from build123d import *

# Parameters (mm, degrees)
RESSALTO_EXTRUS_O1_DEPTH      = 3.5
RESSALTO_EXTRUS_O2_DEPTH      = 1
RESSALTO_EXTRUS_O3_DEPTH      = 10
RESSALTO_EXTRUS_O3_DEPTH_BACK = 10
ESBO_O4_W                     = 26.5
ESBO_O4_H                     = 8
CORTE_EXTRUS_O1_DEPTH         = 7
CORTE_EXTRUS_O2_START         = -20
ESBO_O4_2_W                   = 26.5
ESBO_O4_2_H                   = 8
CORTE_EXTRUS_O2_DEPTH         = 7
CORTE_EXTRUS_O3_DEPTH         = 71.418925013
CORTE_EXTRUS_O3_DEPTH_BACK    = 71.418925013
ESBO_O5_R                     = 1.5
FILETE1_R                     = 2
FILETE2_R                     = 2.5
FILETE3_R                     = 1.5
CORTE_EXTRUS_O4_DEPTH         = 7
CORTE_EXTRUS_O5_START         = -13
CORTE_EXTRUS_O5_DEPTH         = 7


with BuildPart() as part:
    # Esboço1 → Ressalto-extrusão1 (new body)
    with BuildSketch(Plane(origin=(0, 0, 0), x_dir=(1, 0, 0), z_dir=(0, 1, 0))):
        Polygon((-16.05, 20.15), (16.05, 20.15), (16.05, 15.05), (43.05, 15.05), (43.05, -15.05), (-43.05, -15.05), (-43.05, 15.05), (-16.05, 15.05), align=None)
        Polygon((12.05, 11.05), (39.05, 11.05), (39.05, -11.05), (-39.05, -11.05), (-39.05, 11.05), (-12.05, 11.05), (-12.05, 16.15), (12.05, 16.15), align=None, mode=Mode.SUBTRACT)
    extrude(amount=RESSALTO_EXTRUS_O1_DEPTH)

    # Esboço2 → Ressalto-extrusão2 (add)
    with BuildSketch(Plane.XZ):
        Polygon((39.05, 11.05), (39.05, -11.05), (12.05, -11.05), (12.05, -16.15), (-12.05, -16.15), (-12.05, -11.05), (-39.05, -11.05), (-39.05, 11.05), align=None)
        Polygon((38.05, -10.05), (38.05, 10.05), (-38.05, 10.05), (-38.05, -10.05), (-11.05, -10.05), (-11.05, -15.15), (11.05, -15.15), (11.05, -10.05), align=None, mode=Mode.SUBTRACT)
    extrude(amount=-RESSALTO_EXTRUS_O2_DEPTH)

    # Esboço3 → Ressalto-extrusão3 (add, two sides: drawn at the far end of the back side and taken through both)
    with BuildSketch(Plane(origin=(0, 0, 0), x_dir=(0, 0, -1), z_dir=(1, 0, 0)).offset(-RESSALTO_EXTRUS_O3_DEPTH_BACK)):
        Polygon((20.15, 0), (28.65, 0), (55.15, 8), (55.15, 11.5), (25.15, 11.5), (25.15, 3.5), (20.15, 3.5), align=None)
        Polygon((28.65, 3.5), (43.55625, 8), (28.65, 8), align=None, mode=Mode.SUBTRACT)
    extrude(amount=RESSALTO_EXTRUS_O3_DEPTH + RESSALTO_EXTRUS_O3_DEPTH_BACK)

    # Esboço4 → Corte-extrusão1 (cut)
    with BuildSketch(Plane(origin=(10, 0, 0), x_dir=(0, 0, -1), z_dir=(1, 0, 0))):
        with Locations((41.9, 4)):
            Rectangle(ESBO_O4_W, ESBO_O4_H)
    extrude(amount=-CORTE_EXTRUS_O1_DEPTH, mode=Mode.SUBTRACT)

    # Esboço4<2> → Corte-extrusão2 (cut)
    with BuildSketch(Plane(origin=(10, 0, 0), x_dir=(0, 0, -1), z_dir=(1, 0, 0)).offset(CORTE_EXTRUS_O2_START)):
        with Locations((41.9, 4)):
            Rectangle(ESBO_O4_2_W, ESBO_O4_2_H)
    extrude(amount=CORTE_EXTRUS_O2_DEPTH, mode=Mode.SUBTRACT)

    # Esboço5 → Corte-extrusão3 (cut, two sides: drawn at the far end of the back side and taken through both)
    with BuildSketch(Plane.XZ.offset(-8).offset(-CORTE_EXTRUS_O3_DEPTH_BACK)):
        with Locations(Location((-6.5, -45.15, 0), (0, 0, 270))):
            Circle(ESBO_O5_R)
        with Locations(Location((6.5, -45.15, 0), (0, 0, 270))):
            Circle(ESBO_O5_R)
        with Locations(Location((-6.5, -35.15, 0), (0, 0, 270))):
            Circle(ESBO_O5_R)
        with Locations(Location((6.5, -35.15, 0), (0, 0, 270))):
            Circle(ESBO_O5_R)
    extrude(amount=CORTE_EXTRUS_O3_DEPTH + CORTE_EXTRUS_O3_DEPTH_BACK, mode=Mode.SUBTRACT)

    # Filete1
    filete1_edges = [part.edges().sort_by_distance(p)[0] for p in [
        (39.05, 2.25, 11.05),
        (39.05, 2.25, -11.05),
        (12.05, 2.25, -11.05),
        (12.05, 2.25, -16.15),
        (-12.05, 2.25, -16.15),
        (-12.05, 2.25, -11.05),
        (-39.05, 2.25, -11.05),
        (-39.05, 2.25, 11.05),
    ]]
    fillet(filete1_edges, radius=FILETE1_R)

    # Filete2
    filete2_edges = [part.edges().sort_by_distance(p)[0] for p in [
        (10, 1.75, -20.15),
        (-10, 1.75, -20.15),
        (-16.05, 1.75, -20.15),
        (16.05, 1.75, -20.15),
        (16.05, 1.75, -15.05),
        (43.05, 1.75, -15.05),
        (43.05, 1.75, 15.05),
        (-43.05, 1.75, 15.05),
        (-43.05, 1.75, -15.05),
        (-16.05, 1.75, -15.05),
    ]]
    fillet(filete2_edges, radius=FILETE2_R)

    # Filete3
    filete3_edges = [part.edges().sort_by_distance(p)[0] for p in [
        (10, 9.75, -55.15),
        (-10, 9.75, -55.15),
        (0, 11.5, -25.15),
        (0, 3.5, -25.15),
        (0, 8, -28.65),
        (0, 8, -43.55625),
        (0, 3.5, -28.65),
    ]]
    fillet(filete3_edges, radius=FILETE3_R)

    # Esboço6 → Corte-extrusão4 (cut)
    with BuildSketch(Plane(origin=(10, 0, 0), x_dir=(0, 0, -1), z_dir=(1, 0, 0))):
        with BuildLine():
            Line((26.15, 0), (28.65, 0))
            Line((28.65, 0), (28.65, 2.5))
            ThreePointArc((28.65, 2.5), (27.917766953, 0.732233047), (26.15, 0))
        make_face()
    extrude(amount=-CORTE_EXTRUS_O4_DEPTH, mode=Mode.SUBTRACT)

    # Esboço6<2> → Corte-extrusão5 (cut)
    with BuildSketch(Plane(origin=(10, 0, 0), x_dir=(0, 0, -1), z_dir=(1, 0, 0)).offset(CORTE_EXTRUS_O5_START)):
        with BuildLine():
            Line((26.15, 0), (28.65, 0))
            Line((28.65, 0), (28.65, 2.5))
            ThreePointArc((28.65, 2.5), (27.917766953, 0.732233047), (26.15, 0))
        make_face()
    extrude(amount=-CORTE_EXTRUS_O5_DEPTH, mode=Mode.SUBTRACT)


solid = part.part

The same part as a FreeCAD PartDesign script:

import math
import FreeCAD as App
import Part
import Sketcher


def edges_at(feature, points):
    """Names of the edges that pass closest to the given points."""
    edges = feature.Shape.Edges
    near = lambda p: min(range(len(edges)), key=lambda i: edges[i].distToShape(Part.Vertex(*p))[0])
    return sorted({f"Edge{near(p) + 1}" for p in points})

doc = App.newDocument("Part")
body = doc.addObject("PartDesign::Body", "Body")

# Sketch on XZ plane
sketch1 = body.newObject("Sketcher::SketchObject", "Sketch")
sketch1.AttachmentSupport = (doc.getObject("XZ_Plane"), [""])
sketch1.MapMode = "FlatFace"
sketch1.addGeometry([
    Part.LineSegment(App.Vector(16, -20, 0), App.Vector(-16, -20, 0)),  # 0
    Part.LineSegment(App.Vector(-16, -20, 0), App.Vector(-16, -15, 0)),  # 1
    Part.LineSegment(App.Vector(-16, -15, 0), App.Vector(-43, -15, 0)),  # 2
    Part.LineSegment(App.Vector(-43, -15, 0), App.Vector(-43, 15, 0)),  # 3
    Part.LineSegment(App.Vector(-43, 15, 0), App.Vector(43, 15, 0)),  # 4
    Part.LineSegment(App.Vector(43, 15, 0), App.Vector(43, -15, 0)),  # 5
    Part.LineSegment(App.Vector(43, -15, 0), App.Vector(16, -15, 0)),  # 6
    Part.LineSegment(App.Vector(16, -15, 0), App.Vector(16, -20, 0)),  # 7
    Part.LineSegment(App.Vector(12, -11, 0), App.Vector(39, -11, 0)),  # 8
    Part.LineSegment(App.Vector(39, -11, 0), App.Vector(39, 11, 0)),  # 9
    Part.LineSegment(App.Vector(39, 11, 0), App.Vector(-39, 11, 0)),  # 10
    Part.LineSegment(App.Vector(-39, 11, 0), App.Vector(-39, -11, 0)),  # 11
    Part.LineSegment(App.Vector(-39, -11, 0), App.Vector(-12, -11, 0)),  # 12
    Part.LineSegment(App.Vector(-12, -11, 0), App.Vector(-12, -16, 0)),  # 13
    Part.LineSegment(App.Vector(-12, -16, 0), App.Vector(12, -16, 0)),  # 14
    Part.LineSegment(App.Vector(12, -16, 0), App.Vector(12, -11, 0)),  # 15
], False)
sketch1.addConstraint([
    Sketcher.Constraint("Coincident", 0, 2, 1, 1),
    Sketcher.Constraint("Coincident", 1, 2, 2, 1),
    Sketcher.Constraint("Coincident", 2, 2, 3, 1),
    Sketcher.Constraint("Coincident", 3, 2, 4, 1),
    Sketcher.Constraint("Coincident", 4, 2, 5, 1),
    Sketcher.Constraint("Coincident", 5, 2, 6, 1),
    Sketcher.Constraint("Coincident", 6, 2, 7, 1),
    Sketcher.Constraint("Coincident", 7, 2, 0, 1),
    Sketcher.Constraint("Coincident", 8, 2, 9, 1),
    Sketcher.Constraint("Coincident", 9, 2, 10, 1),
    Sketcher.Constraint("Coincident", 10, 2, 11, 1),
    Sketcher.Constraint("Coincident", 11, 2, 12, 1),
    Sketcher.Constraint("Coincident", 12, 2, 13, 1),
    Sketcher.Constraint("Coincident", 13, 2, 14, 1),
    Sketcher.Constraint("Coincident", 14, 2, 15, 1),
    Sketcher.Constraint("Coincident", 15, 2, 8, 1),
    Sketcher.Constraint("Horizontal", 0),
    Sketcher.Constraint("Vertical", 1),
    Sketcher.Constraint("Horizontal", 2),
    Sketcher.Constraint("Vertical", 3),
    Sketcher.Constraint("Horizontal", 4),
    Sketcher.Constraint("Vertical", 5),
    Sketcher.Constraint("Horizontal", 6),
    Sketcher.Constraint("Vertical", 7),
    Sketcher.Constraint("Horizontal", 8),
    Sketcher.Constraint("Vertical", 9),
    Sketcher.Constraint("Horizontal", 10),
    Sketcher.Constraint("Vertical", 11),
    Sketcher.Constraint("Horizontal", 12),
    Sketcher.Constraint("Vertical", 13),
    Sketcher.Constraint("Horizontal", 14),
    Sketcher.Constraint("Vertical", 15),
    Sketcher.Constraint("Symmetric", 2, 2, 4, 2, -1, 1),
    Sketcher.Constraint("Symmetric", 8, 2, 10, 2, -1, 1),
    Sketcher.Constraint("Symmetric", 1, 2, 6, 2, -2),
    Sketcher.Constraint("Symmetric", 12, 2, 15, 2, -2),
    Sketcher.Constraint("Equal", 6, 8),
    Sketcher.Constraint("Equal", 7, 13),
    Sketcher.Constraint("DistanceX", 2, 2, 2, 1, 27.0),
    Sketcher.Constraint("DistanceX", 0, 2, 0, 1, 32.1),
    Sketcher.Constraint("DistanceX", 10, 2, 10, 1, 78.1),
    Sketcher.Constraint("DistanceY", 1, 1, 1, 2, 5.1),
    Sketcher.Constraint("DistanceY", 3, 1, 3, 2, 30.1),
    Sketcher.Constraint("DistanceY", 9, 1, 9, 2, 22.1),
])
pad1 = body.newObject("PartDesign::Pad", "Pad")
pad1.Profile = sketch1
pad1.Length = 3.5
pad1.Reversed = True

# Sketch on XZ plane
sketch2 = body.newObject("Sketcher::SketchObject", "Sketch001")
sketch2.AttachmentSupport = (doc.getObject("XZ_Plane"), [""])
sketch2.MapMode = "FlatFace"
sketch2.addGeometry([
    Part.LineSegment(App.Vector(39, -11, 0), App.Vector(39, 11, 0)),  # 0
    Part.LineSegment(App.Vector(39, 11, 0), App.Vector(-39, 11, 0)),  # 1
    Part.LineSegment(App.Vector(-39, 11, 0), App.Vector(-39, -11, 0)),  # 2
    Part.LineSegment(App.Vector(-39, -11, 0), App.Vector(-12, -11, 0)),  # 3
    Part.LineSegment(App.Vector(-12, -11, 0), App.Vector(-12, -16, 0)),  # 4
    Part.LineSegment(App.Vector(-12, -16, 0), App.Vector(12, -16, 0)),  # 5
    Part.LineSegment(App.Vector(12, -16, 0), App.Vector(12, -11, 0)),  # 6
    Part.LineSegment(App.Vector(12, -11, 0), App.Vector(39, -11, 0)),  # 7
    Part.LineSegment(App.Vector(38, -10, 0), App.Vector(11, -10, 0)),  # 8
    Part.LineSegment(App.Vector(11, -10, 0), App.Vector(11, -15, 0)),  # 9
    Part.LineSegment(App.Vector(11, -15, 0), App.Vector(-11, -15, 0)),  # 10
    Part.LineSegment(App.Vector(-11, -15, 0), App.Vector(-11, -10, 0)),  # 11
    Part.LineSegment(App.Vector(-11, -10, 0), App.Vector(-38, -10, 0)),  # 12
    Part.LineSegment(App.Vector(-38, -10, 0), App.Vector(-38, 10, 0)),  # 13
    Part.LineSegment(App.Vector(-38, 10, 0), App.Vector(38, 10, 0)),  # 14
    Part.LineSegment(App.Vector(38, 10, 0), App.Vector(38, -10, 0)),  # 15
], False)
sketch2.addConstraint([
    Sketcher.Constraint("Coincident", 0, 2, 1, 1),
    Sketcher.Constraint("Coincident", 1, 2, 2, 1),
    Sketcher.Constraint("Coincident", 2, 2, 3, 1),
    Sketcher.Constraint("Coincident", 3, 2, 4, 1),
    Sketcher.Constraint("Coincident", 4, 2, 5, 1),
    Sketcher.Constraint("Coincident", 5, 2, 6, 1),
    Sketcher.Constraint("Coincident", 6, 2, 7, 1),
    Sketcher.Constraint("Coincident", 7, 2, 0, 1),
    Sketcher.Constraint("Coincident", 8, 2, 9, 1),
    Sketcher.Constraint("Coincident", 9, 2, 10, 1),
    Sketcher.Constraint("Coincident", 10, 2, 11, 1),
    Sketcher.Constraint("Coincident", 11, 2, 12, 1),
    Sketcher.Constraint("Coincident", 12, 2, 13, 1),
    Sketcher.Constraint("Coincident", 13, 2, 14, 1),
    Sketcher.Constraint("Coincident", 14, 2, 15, 1),
    Sketcher.Constraint("Coincident", 15, 2, 8, 1),
    Sketcher.Constraint("Vertical", 0),
    Sketcher.Constraint("Horizontal", 1),
    Sketcher.Constraint("Vertical", 2),
    Sketcher.Constraint("Horizontal", 3),
    Sketcher.Constraint("Vertical", 4),
    Sketcher.Constraint("Horizontal", 5),
    Sketcher.Constraint("Vertical", 6),
    Sketcher.Constraint("Horizontal", 7),
    Sketcher.Constraint("Horizontal", 8),
    Sketcher.Constraint("Vertical", 9),
    Sketcher.Constraint("Horizontal", 10),
    Sketcher.Constraint("Vertical", 11),
    Sketcher.Constraint("Horizontal", 12),
    Sketcher.Constraint("Vertical", 13),
    Sketcher.Constraint("Horizontal", 14),
    Sketcher.Constraint("Vertical", 15),
    Sketcher.Constraint("Symmetric", 0, 2, 2, 2, -1, 1),
    Sketcher.Constraint("Symmetric", 12, 2, 14, 2, -1, 1),
    Sketcher.Constraint("Symmetric", 3, 2, 6, 2, -2),
    Sketcher.Constraint("Symmetric", 8, 2, 11, 2, -2),
    Sketcher.Constraint("Equal", 7, 8),
    Sketcher.Constraint("Equal", 10, 0),
    Sketcher.Constraint("Equal", 6, 9),
    Sketcher.Constraint("DistanceX", 3, 1, 3, 2, 27.0),
    Sketcher.Constraint("DistanceX", 1, 2, 1, 1, 78.1),
    Sketcher.Constraint("DistanceX", 10, 2, 10, 1, 22.1),
    Sketcher.Constraint("DistanceY", 4, 2, 4, 1, 5.1),
    Sketcher.Constraint("DistanceY", 13, 1, 13, 2, 20.1),
])
pad2 = body.newObject("PartDesign::Pad", "Pad001")
pad2.Profile = sketch2
pad2.Length = 1
pad2.Reversed = True

# Sketch on YZ plane
sketch3 = body.newObject("Sketcher::SketchObject", "Sketch002")
sketch3.AttachmentSupport = (doc.getObject("YZ_Plane"), [""])
sketch3.MapMode = "FlatFace"
sketch3.addGeometry([
    Part.LineSegment(App.Vector(0, -20.1, 0), App.Vector(0, -28.6, 0)),  # 0
    Part.LineSegment(App.Vector(0, -28.6, 0), App.Vector(8, -55.1, 0)),  # 1
    Part.LineSegment(App.Vector(8, -55.1, 0), App.Vector(11.5, -55.1, 0)),  # 2
    Part.LineSegment(App.Vector(11.5, -55.1, 0), App.Vector(11.5, -25.1, 0)),  # 3
    Part.LineSegment(App.Vector(11.5, -25.1, 0), App.Vector(3.5, -25.1, 0)),  # 4
    Part.LineSegment(App.Vector(3.5, -25.1, 0), App.Vector(3.5, -20.1, 0)),  # 5
    Part.LineSegment(App.Vector(3.5, -20.1, 0), App.Vector(0, -20.1, 0)),  # 6
    Part.LineSegment(App.Vector(8, -43.6, 0), App.Vector(3.5, -28.6, 0)),  # 7
    Part.LineSegment(App.Vector(3.5, -28.6, 0), App.Vector(8, -28.6, 0)),  # 8
    Part.LineSegment(App.Vector(8, -28.6, 0), App.Vector(8, -43.6, 0)),  # 9
], False)
sketch3.addConstraint([
    Sketcher.Constraint("Coincident", 0, 2, 1, 1),
    Sketcher.Constraint("Coincident", 1, 2, 2, 1),
    Sketcher.Constraint("Coincident", 2, 2, 3, 1),
    Sketcher.Constraint("Coincident", 3, 2, 4, 1),
    Sketcher.Constraint("Coincident", 4, 2, 5, 1),
    Sketcher.Constraint("Coincident", 5, 2, 6, 1),
    Sketcher.Constraint("Coincident", 6, 2, 0, 1),
    Sketcher.Constraint("Coincident", 7, 2, 8, 1),
    Sketcher.Constraint("Coincident", 8, 2, 9, 1),
    Sketcher.Constraint("Coincident", 9, 2, 7, 1),
    Sketcher.Constraint("Vertical", 0),
    Sketcher.Constraint("Horizontal", 2),
    Sketcher.Constraint("Vertical", 3),
    Sketcher.Constraint("Horizontal", 4),
    Sketcher.Constraint("Vertical", 5),
    Sketcher.Constraint("Horizontal", 6),
    Sketcher.Constraint("Horizontal", 8),
    Sketcher.Constraint("Vertical", 9),
    Sketcher.Constraint("PointOnObject", 0, 2, -2),
    Sketcher.Constraint("Parallel", 1, 7),
    Sketcher.Constraint("Horizontal", 0, 2, 7, 2),
    Sketcher.Constraint("Vertical", 5, 2, 7, 2),
    Sketcher.Constraint("Vertical", 1, 2, 8, 2),
    Sketcher.Constraint("Equal", 2, 6),
    Sketcher.Constraint("DistanceX", 4, 2, 4, 1, 8.0),
    Sketcher.Constraint("DistanceY", 3, 1, 3, 2, 30.0),
    Sketcher.Constraint("DistanceY", 5, 1, 5, 2, 5.0),
    Sketcher.Constraint("DistanceX", 2, 1, 2, 2, 3.5),
    Sketcher.Constraint("DistanceY", 0, 2, 0, 1, 8.5),
    Sketcher.Constraint("DistanceY", 0, 2, -1, 1, 28.65),
])
pad3 = body.newObject("PartDesign::Pad", "Pad002")
pad3.Profile = sketch3
pad3.Type = "TwoLengths"
pad3.Length = 10
pad3.Length2 = 10

# Sketch on YZ plane
sketch4 = body.newObject("Sketcher::SketchObject", "Sketch003")
sketch4.AttachmentSupport = (doc.getObject("YZ_Plane"), [""])
sketch4.MapMode = "FlatFace"
sketch4.AttachmentOffset = App.Placement(App.Vector(0, 0, 10), App.Rotation())
sketch4.addGeometry([
    Part.LineSegment(App.Vector(8, -29, 0), App.Vector(0, -29, 0)),
    Part.LineSegment(App.Vector(0, -29, 0), App.Vector(0, -55, 0)),
    Part.LineSegment(App.Vector(0, -55, 0), App.Vector(8, -55, 0)),
    Part.LineSegment(App.Vector(8, -55, 0), App.Vector(8, -29, 0)),
], False)
sketch4.addConstraint([
    Sketcher.Constraint("Coincident", 0, 2, 1, 1),
    Sketcher.Constraint("Coincident", 1, 2, 2, 1),
    Sketcher.Constraint("Coincident", 2, 2, 3, 1),
    Sketcher.Constraint("Coincident", 3, 2, 0, 1),
    Sketcher.Constraint("Horizontal", 0),
    Sketcher.Constraint("Vertical", 1),
    Sketcher.Constraint("Horizontal", 2),
    Sketcher.Constraint("Vertical", 3),
    Sketcher.Constraint("PointOnObject", 0, 2, -2),
    Sketcher.Constraint("DistanceX", 0, 2, 0, 1, 8.0),
    Sketcher.Constraint("DistanceY", 1, 2, 1, 1, 26.5),
    Sketcher.Constraint("DistanceY", 0, 2, -1, 1, 28.65),
])
pocket1 = body.newObject("PartDesign::Pocket", "Pocket")
pocket1.Profile = sketch4
pocket1.Length = 7

# Sketch on YZ plane
sketch5 = body.newObject("Sketcher::SketchObject", "Sketch004")
sketch5.AttachmentSupport = (doc.getObject("YZ_Plane"), [""])
sketch5.MapMode = "FlatFace"
sketch5.AttachmentOffset = App.Placement(App.Vector(0, 0, -10), App.Rotation())
sketch5.addGeometry([
    Part.LineSegment(App.Vector(8, -29, 0), App.Vector(0, -29, 0)),
    Part.LineSegment(App.Vector(0, -29, 0), App.Vector(0, -55, 0)),
    Part.LineSegment(App.Vector(0, -55, 0), App.Vector(8, -55, 0)),
    Part.LineSegment(App.Vector(8, -55, 0), App.Vector(8, -29, 0)),
], False)
sketch5.addConstraint([
    Sketcher.Constraint("Coincident", 0, 2, 1, 1),
    Sketcher.Constraint("Coincident", 1, 2, 2, 1),
    Sketcher.Constraint("Coincident", 2, 2, 3, 1),
    Sketcher.Constraint("Coincident", 3, 2, 0, 1),
    Sketcher.Constraint("Horizontal", 0),
    Sketcher.Constraint("Vertical", 1),
    Sketcher.Constraint("Horizontal", 2),
    Sketcher.Constraint("Vertical", 3),
    Sketcher.Constraint("PointOnObject", 0, 2, -2),
    Sketcher.Constraint("DistanceX", 0, 2, 0, 1, 8.0),
    Sketcher.Constraint("DistanceY", 1, 2, 1, 1, 26.5),
    Sketcher.Constraint("DistanceY", 0, 2, -1, 1, 28.65),
])
pocket2 = body.newObject("PartDesign::Pocket", "Pocket001")
pocket2.Profile = sketch5
pocket2.Length = 7
pocket2.Reversed = True

# Sketch on XZ plane
sketch6 = body.newObject("Sketcher::SketchObject", "Sketch005")
sketch6.AttachmentSupport = (doc.getObject("XZ_Plane"), [""])
sketch6.MapMode = "FlatFace"
sketch6.AttachmentOffset = App.Placement(App.Vector(0, 0, -8), App.Rotation())
sketch6.addGeometry([
    Part.Circle(App.Vector(-6.5, -45.1, 0), App.Vector(0, 0, 1), 1.5),
    Part.Circle(App.Vector(6.5, -45.1, 0), App.Vector(0, 0, 1), 1.5),
    Part.Circle(App.Vector(-6.5, -35.1, 0), App.Vector(0, 0, 1), 1.5),
    Part.Circle(App.Vector(6.5, -35.1, 0), App.Vector(0, 0, 1), 1.5),
], False)
sketch6.addConstraint([
    Sketcher.Constraint("Equal", 0, 1),
    Sketcher.Constraint("Equal", 1, 2),
    Sketcher.Constraint("Equal", 2, 3),
    Sketcher.Constraint("Symmetric", 0, 3, 1, 3, -2),
    Sketcher.Constraint("Symmetric", 2, 3, 3, 3, -2),
    Sketcher.Constraint("Vertical", 0, 3, 2, 3),
    Sketcher.Constraint("Diameter", 0, 3.0),
    Sketcher.Constraint("DistanceX", 0, 3, 1, 3, 13.0),
    Sketcher.Constraint("DistanceY", 0, 3, 2, 3, 10.0),
    Sketcher.Constraint("DistanceY", 0, 3, -1, 1, 45.15),
])
pocket3 = body.newObject("PartDesign::Pocket", "Pocket002")
pocket3.Profile = sketch6
pocket3.Type = "ThroughAll"
pocket3.Midplane = True
doc.recompute()

fillet = body.newObject("PartDesign::Fillet", "Fillet")
fillet.Base = (pocket3, edges_at(pocket3, [
    (39.05, 2.25, 11.05),
    (39.05, 2.25, -11.05),
    (12.05, 2.25, -11.05),
    (12.05, 2.25, -16.15),
    (-12.05, 2.25, -16.15),
    (-12.05, 2.25, -11.05),
    (-39.05, 2.25, -11.05),
    (-39.05, 2.25, 11.05),
]))
fillet.Radius = 2
doc.recompute()

fillet2 = body.newObject("PartDesign::Fillet", "Fillet001")
fillet2.Base = (fillet, edges_at(fillet, [
    (10, 1.75, -20.15),
    (-10, 1.75, -20.15),
    (-16.05, 1.75, -20.15),
    (16.05, 1.75, -20.15),
    (16.05, 1.75, -15.05),
    (43.05, 1.75, -15.05),
    (43.05, 1.75, 15.05),
    (-43.05, 1.75, 15.05),
    (-43.05, 1.75, -15.05),
    (-16.05, 1.75, -15.05),
]))
fillet2.Radius = 2.5
doc.recompute()

fillet3 = body.newObject("PartDesign::Fillet", "Fillet002")
fillet3.Base = (fillet2, edges_at(fillet2, [
    (10, 9.75, -55.15),
    (-10, 9.75, -55.15),
    (0, 11.5, -25.15),
    (0, 3.5, -25.15),
    (0, 8, -28.65),
    (0, 8, -43.556),
    (0, 3.5, -28.65),
]))
fillet3.Radius = 1.5

# Sketch on YZ plane
sketch7 = body.newObject("Sketcher::SketchObject", "Sketch006")
sketch7.AttachmentSupport = (doc.getObject("YZ_Plane"), [""])
sketch7.MapMode = "FlatFace"
sketch7.AttachmentOffset = App.Placement(App.Vector(0, 0, 10), App.Rotation())
sketch7.addGeometry([
    Part.LineSegment(App.Vector(0, -26.1, 0), App.Vector(0, -28.6, 0)),
    Part.LineSegment(App.Vector(0, -28.6, 0), App.Vector(2.5, -28.6, 0)),
    Part.ArcOfCircle(Part.Circle(App.Vector(2.5, -26.1, 0), App.Vector(0, 0, 1), 2.5), math.radians(180), math.radians(270)),
], False)
sketch7.addConstraint([
    Sketcher.Constraint("Coincident", 0, 2, 1, 1),
    Sketcher.Constraint("Tangent", 1, 2, 2, 2),
    Sketcher.Constraint("Tangent", 2, 1, 0, 1),
    Sketcher.Constraint("Vertical", 0),
    Sketcher.Constraint("Horizontal", 1),
    Sketcher.Constraint("PointOnObject", 0, 2, -2),
    Sketcher.Constraint("Radius", 2, 2.5),
    Sketcher.Constraint("DistanceY", 2, 3, -1, 1, 26.15),
])
pocket4 = body.newObject("PartDesign::Pocket", "Pocket003")
pocket4.Profile = sketch7
pocket4.Length = 7

# Sketch on YZ plane
sketch8 = body.newObject("Sketcher::SketchObject", "Sketch007")
sketch8.AttachmentSupport = (doc.getObject("YZ_Plane"), [""])
sketch8.MapMode = "FlatFace"
sketch8.AttachmentOffset = App.Placement(App.Vector(0, 0, -3), App.Rotation())
sketch8.addGeometry([
    Part.LineSegment(App.Vector(0, -26.1, 0), App.Vector(0, -28.6, 0)),
    Part.LineSegment(App.Vector(0, -28.6, 0), App.Vector(2.5, -28.6, 0)),
    Part.ArcOfCircle(Part.Circle(App.Vector(2.5, -26.1, 0), App.Vector(0, 0, 1), 2.5), math.radians(180), math.radians(270)),
], False)
sketch8.addConstraint([
    Sketcher.Constraint("Coincident", 0, 2, 1, 1),
    Sketcher.Constraint("Tangent", 1, 2, 2, 2),
    Sketcher.Constraint("Tangent", 2, 1, 0, 1),
    Sketcher.Constraint("Vertical", 0),
    Sketcher.Constraint("Horizontal", 1),
    Sketcher.Constraint("PointOnObject", 0, 2, -2),
    Sketcher.Constraint("Radius", 2, 2.5),
    Sketcher.Constraint("DistanceY", 2, 3, -1, 1, 26.15),
])
pocket5 = body.newObject("PartDesign::Pocket", "Pocket004")
pocket5.Profile = sketch8
pocket5.Length = 7

doc.recompute()
